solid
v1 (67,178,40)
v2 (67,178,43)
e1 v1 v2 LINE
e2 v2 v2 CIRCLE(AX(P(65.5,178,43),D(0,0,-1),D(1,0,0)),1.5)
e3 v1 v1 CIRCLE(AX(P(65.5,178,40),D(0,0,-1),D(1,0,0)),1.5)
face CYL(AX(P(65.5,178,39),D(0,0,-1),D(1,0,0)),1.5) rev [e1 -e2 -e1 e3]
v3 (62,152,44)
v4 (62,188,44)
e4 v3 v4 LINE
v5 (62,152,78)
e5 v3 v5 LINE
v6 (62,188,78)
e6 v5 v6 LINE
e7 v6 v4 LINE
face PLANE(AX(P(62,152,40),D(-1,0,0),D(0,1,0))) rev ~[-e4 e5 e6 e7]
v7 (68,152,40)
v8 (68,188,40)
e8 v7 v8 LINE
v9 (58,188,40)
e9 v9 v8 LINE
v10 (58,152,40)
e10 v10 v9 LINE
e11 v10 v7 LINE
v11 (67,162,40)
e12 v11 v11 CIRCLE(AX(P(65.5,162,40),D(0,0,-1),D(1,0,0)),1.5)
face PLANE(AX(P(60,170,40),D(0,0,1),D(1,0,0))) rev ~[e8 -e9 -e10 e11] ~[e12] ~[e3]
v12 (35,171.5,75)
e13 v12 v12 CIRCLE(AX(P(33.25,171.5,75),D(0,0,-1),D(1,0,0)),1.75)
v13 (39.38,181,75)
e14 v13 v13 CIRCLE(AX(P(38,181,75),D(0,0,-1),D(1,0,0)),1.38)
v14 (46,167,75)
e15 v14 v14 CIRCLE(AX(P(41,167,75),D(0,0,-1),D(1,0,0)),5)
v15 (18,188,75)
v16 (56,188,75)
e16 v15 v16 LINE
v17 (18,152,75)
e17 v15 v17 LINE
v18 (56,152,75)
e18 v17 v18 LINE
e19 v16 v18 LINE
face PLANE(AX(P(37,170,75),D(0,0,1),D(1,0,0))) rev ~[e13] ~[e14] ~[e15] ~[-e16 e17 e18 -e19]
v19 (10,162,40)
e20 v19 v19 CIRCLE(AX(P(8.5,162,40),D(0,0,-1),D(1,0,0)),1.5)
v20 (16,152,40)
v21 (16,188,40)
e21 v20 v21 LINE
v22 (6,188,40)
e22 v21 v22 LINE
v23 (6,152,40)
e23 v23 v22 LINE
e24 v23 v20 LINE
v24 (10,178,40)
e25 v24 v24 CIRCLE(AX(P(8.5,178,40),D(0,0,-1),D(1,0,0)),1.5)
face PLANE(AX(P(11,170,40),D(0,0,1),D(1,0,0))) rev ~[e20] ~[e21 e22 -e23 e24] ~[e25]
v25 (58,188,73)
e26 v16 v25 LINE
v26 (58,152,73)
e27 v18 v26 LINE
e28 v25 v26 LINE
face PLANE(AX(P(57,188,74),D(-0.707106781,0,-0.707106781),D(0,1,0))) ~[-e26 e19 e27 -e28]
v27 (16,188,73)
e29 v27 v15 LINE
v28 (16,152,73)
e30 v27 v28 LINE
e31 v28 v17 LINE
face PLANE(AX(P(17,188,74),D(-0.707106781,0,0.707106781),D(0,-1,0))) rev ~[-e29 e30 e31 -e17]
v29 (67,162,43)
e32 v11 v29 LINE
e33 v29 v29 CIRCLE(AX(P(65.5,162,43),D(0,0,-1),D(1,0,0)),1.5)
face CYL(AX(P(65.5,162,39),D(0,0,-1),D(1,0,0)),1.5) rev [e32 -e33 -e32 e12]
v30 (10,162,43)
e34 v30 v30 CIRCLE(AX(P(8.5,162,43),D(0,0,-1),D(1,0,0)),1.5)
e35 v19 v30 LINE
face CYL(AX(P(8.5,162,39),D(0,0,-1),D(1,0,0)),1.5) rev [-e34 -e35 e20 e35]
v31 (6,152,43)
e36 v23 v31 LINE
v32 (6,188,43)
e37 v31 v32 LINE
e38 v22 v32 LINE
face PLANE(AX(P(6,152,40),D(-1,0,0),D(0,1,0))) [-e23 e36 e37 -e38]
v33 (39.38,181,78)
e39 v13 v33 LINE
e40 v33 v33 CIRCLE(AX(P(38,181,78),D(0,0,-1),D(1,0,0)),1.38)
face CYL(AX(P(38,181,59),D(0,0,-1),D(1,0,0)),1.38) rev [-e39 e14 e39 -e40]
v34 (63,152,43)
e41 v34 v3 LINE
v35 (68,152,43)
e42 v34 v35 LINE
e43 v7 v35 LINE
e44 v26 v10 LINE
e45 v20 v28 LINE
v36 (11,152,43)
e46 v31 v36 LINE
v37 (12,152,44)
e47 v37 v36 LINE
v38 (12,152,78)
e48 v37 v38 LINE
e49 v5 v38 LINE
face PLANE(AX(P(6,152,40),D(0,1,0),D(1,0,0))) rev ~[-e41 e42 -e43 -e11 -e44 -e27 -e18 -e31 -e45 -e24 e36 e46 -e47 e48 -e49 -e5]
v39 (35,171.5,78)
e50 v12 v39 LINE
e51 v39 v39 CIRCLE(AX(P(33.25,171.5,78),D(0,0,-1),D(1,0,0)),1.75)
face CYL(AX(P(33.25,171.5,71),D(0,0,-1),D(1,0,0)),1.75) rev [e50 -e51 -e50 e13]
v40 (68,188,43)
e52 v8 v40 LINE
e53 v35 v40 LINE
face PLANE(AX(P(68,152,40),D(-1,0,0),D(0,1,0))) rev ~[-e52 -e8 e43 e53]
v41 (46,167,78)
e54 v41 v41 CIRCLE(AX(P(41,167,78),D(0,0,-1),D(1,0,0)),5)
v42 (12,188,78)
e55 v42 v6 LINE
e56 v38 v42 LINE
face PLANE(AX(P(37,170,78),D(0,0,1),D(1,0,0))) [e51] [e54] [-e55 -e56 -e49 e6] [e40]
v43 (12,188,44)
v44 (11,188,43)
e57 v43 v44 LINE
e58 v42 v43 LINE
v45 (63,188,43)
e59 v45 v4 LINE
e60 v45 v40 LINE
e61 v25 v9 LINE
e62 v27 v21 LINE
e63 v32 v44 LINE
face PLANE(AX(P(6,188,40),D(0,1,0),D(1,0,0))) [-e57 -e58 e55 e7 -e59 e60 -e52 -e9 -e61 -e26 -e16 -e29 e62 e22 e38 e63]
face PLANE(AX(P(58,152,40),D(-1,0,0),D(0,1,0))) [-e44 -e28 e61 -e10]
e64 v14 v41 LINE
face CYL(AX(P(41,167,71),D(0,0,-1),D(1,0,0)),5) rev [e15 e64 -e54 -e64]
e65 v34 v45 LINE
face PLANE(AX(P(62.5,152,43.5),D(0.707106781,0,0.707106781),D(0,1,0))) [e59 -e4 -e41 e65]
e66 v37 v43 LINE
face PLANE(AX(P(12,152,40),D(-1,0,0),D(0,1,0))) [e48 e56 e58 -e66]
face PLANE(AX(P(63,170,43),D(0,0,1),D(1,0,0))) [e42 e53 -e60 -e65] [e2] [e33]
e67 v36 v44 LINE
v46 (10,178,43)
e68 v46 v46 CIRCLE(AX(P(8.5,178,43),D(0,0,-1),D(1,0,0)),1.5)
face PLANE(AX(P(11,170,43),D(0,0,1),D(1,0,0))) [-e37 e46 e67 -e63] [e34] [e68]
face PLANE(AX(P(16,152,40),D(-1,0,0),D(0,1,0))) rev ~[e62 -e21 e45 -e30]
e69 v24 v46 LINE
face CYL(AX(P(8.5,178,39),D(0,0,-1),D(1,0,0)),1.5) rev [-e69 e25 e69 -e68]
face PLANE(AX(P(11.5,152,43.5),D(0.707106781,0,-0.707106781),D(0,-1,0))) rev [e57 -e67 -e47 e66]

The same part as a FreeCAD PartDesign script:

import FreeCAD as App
import Part
import Sketcher


def edges_at(feature, points):
    """Names of the edges that pass closest to the given points."""
    edges = feature.Shape.Edges
    near = lambda p: min(range(len(edges)), key=lambda i: edges[i].distToShape(Part.Vertex(*p))[0])
    return sorted({f"Edge{near(p) + 1}" for p in points})

doc = App.newDocument("Part")
body = doc.addObject("PartDesign::Body", "Body")

# Sketch on XY plane
sketch1 = body.newObject("Sketcher::SketchObject", "Sketch")
sketch1.AttachmentSupport = (doc.getObject("XY_Plane"), [""])
sketch1.MapMode = "FlatFace"
sketch1.AttachmentOffset = App.Placement(App.Vector(0, 0, 59), App.Rotation())
sketch1.addGeometry(Part.Circle(App.Vector(38, 57, 0), App.Vector(0, 0, 1), 1.4), False)
sketch1.addConstraint(Sketcher.Constraint("Diameter", 0, 2.76))
sketch1.addConstraint(Sketcher.Constraint("DistanceX", -1, 1, 0, 3, 38.0))
sketch1.addConstraint(Sketcher.Constraint("DistanceY", -1, 1, 0, 3, 57.0))
pad1 = body.newObject("PartDesign::Pad", "Pad")
pad1.Profile = sketch1
pad1.Length = 40
body2 = doc.addObject("PartDesign::Body", "Body001")

# Sketch on XY plane
sketch2 = body2.newObject("Sketcher::SketchObject", "Sketch001")
sketch2.AttachmentSupport = (doc.getObject("XY_Plane001"), [""])
sketch2.MapMode = "FlatFace"
sketch2.AttachmentOffset = App.Placement(App.Vector(0, 0, 71), App.Rotation())
sketch2.addGeometry(Part.Circle(App.Vector(33.2, 47.5, 0), App.Vector(0, 0, 1), 1.8), False)
sketch2.addConstraint(Sketcher.Constraint("Diameter", 0, 3.5))
sketch2.addConstraint(Sketcher.Constraint("DistanceY", -1, 1, 0, 3, 47.5))
sketch2.addConstraint(Sketcher.Constraint("DistanceX", -1, 1, 0, 3, 33.25))
pad2 = body2.newObject("PartDesign::Pad", "Pad001")
pad2.Profile = sketch2
pad2.Length = 10
body3 = doc.addObject("PartDesign::Body", "Body002")

# Sketch on XY plane
sketch3 = body3.newObject("Sketcher::SketchObject", "Sketch002")
sketch3.AttachmentSupport = (doc.getObject("XY_Plane002"), [""])
sketch3.MapMode = "FlatFace"
sketch3.AttachmentOffset = App.Placement(App.Vector(0, 0, 71), App.Rotation())
sketch3.addGeometry(Part.Circle(App.Vector(41, 43, 0), App.Vector(0, 0, 1), 5), False)
sketch3.addConstraint(Sketcher.Constraint("Diameter", 0, 10.0))
sketch3.addConstraint(Sketcher.Constraint("DistanceX", -1, 1, 0, 3, 41.0))
sketch3.addConstraint(Sketcher.Constraint("DistanceY", -1, 1, 0, 3, 43.0))
pad3 = body3.newObject("PartDesign::Pad", "Pad002")
pad3.Profile = sketch3
pad3.Length = 10
body4 = doc.addObject("PartDesign::Body", "Body003")

# Sketch on XY plane
sketch4 = body4.newObject("Sketcher::SketchObject", "Sketch003")
sketch4.AttachmentSupport = (doc.getObject("XY_Plane003"), [""])
sketch4.MapMode = "FlatFace"
sketch4.AttachmentOffset = App.Placement(App.Vector(0, 0, 10), App.Rotation())
sketch4.addGeometry(Part.Circle(App.Vector(0, 0, 0), App.Vector(0, 0, 1), 8), False)
sketch4.addConstraint(Sketcher.Constraint("Coincident", 0, 3, -1, 1))
sketch4.addConstraint(Sketcher.Constraint("Diameter", 0, 17.0))
pad4 = body4.newObject("PartDesign::Pad", "Pad003")
pad4.Profile = sketch4
pad4.Length = 2
body5 = doc.addObject("PartDesign::Body", "Body004")

# Sketch on XY plane
sketch5 = body5.newObject("Sketcher::SketchObject", "Sketch004")
sketch5.AttachmentSupport = (doc.getObject("XY_Plane004"), [""])
sketch5.MapMode = "FlatFace"
sketch5.AttachmentOffset = App.Placement(App.Vector(0, 0, -5), App.Rotation())
sketch5.addGeometry(Part.LineSegment(App.Vector(11, 0.5, 0), App.Vector(11, -0.5, 0)), False)
sketch5.addGeometry(Part.LineSegment(App.Vector(11, -0.5, 0), App.Vector(11.5, -0.5, 0)), False)
sketch5.addGeometry(Part.LineSegment(App.Vector(11.5, -0.5, 0), App.Vector(11.5, 0.5, 0)), False)
sketch5.addGeometry(Part.LineSegment(App.Vector(11.5, 0.5, 0), App.Vector(11, 0.5, 0)), False)
sketch5.addConstraint(Sketcher.Constraint("Coincident", 0, 2, 1, 1))
sketch5.addConstraint(Sketcher.Constraint("Coincident", 1, 2, 2, 1))
sketch5.addConstraint(Sketcher.Constraint("Coincident", 2, 2, 3, 1))
sketch5.addConstraint(Sketcher.Constraint("Coincident", 3, 2, 0, 1))
sketch5.addConstraint(Sketcher.Constraint("Vertical", 0))
sketch5.addConstraint(Sketcher.Constraint("Horizontal", 1))
sketch5.addConstraint(Sketcher.Constraint("Vertical", 2))
sketch5.addConstraint(Sketcher.Constraint("Horizontal", 3))
sketch5.addConstraint(Sketcher.Constraint("DistanceY", 0, 2, 0, 1, 1.0))
sketch5.addConstraint(Sketcher.Constraint("DistanceX", 1, 1, 1, 2, 0.5))
sketch5.addConstraint(Sketcher.Constraint("DistanceX", -1, 1, 0, 2, 11.0))
sketch5.addConstraint(Sketcher.Constraint("DistanceY", 0, 2, -1, 1, 0.5))
pad5 = body5.newObject("PartDesign::Pad", "Pad004")
pad5.Profile = sketch5
pad5.Length = 5
body6 = doc.addObject("PartDesign::Body", "Body005")
body6.AllowCompound = True
doc.recompute()

body6.BaseFeature = body5
doc.recompute()

body7 = doc.addObject("PartDesign::Body", "Body006")
body7.BaseFeature = body5
body7.Placement = App.Placement(App.Vector(0, 0, 0), App.Rotation(App.Vector(0, 0, 1), 30))
boolean = body6.newObject("PartDesign::Boolean", "Boolean")
boolean.Type = "Fuse"
boolean.addObjects([body7])
doc.recompute()

body8 = doc.addObject("PartDesign::Body", "Body007")
body8.BaseFeature = body5
body8.Placement = App.Placement(App.Vector(0, 0, 0), App.Rotation(App.Vector(0, 0, 1), 60))
boolean2 = body6.newObject("PartDesign::Boolean", "Boolean001")
boolean2.Type = "Fuse"
boolean2.addObjects([body8])
doc.recompute()

body9 = doc.addObject("PartDesign::Body", "Body008")
body9.BaseFeature = body5
body9.Placement = App.Placement(App.Vector(0, 0, 0), App.Rotation(App.Vector(0, 0, 1), 90))
boolean3 = body6.newObject("PartDesign::Boolean", "Boolean002")
boolean3.Type = "Fuse"
boolean3.addObjects([body9])
doc.recompute()

body10 = doc.addObject("PartDesign::Body", "Body009")
body10.BaseFeature = body5
body10.Placement = App.Placement(App.Vector(0, 0, 0), App.Rotation(App.Vector(0, 0, 1), 120))
boolean4 = body6.newObject("PartDesign::Boolean", "Boolean003")
boolean4.Type = "Fuse"
boolean4.addObjects([body10])
doc.recompute()

body11 = doc.addObject("PartDesign::Body", "Body010")
body11.BaseFeature = body5
body11.Placement = App.Placement(App.Vector(0, 0, 0), App.Rotation(App.Vector(0, 0, 1), 150))
boolean5 = body6.newObject("PartDesign::Boolean", "Boolean004")
boolean5.Type = "Fuse"
boolean5.addObjects([body11])
doc.recompute()

body12 = doc.addObject("PartDesign::Body", "Body011")
body12.BaseFeature = body5
body12.Placement = App.Placement(App.Vector(0, 0, 0), App.Rotation(App.Vector(0, 0, 1), 180))
boolean6 = body6.newObject("PartDesign::Boolean", "Boolean005")
boolean6.Type = "Fuse"
boolean6.addObjects([body12])
doc.recompute()

body13 = doc.addObject("PartDesign::Body", "Body012")
body13.BaseFeature = body5
body13.Placement = App.Placement(App.Vector(0, 0, 0), App.Rotation(App.Vector(0, 0, 1), 210))
boolean7 = body6.newObject("PartDesign::Boolean", "Boolean006")
boolean7.Type = "Fuse"
boolean7.addObjects([body13])
doc.recompute()

body14 = doc.addObject("PartDesign::Body", "Body013")
body14.BaseFeature = body5
body14.Placement = App.Placement(App.Vector(0, 0, 0), App.Rotation(App.Vector(0, 0, 1), 240))
boolean8 = body6.newObject("PartDesign::Boolean", "Boolean007")
boolean8.Type = "Fuse"
boolean8.addObjects([body14])
doc.recompute()

body15 = doc.addObject("PartDesign::Body", "Body014")
body15.BaseFeature = body5
body15.Placement = App.Placement(App.Vector(0, 0, 0), App.Rotation(App.Vector(0, 0, 1), 270))
boolean9 = body6.newObject("PartDesign::Boolean", "Boolean008")
boolean9.Type = "Fuse"
boolean9.addObjects([body15])
doc.recompute()

body16 = doc.addObject("PartDesign::Body", "Body015")
body16.BaseFeature = body5
body16.Placement = App.Placement(App.Vector(0, 0, 0), App.Rotation(App.Vector(0, 0, 1), 300))
boolean10 = body6.newObject("PartDesign::Boolean", "Boolean009")
boolean10.Type = "Fuse"
boolean10.addObjects([body16])
doc.recompute()

body5.Placement = App.Placement(App.Vector(0, 0, 0), App.Rotation(App.Vector(0, 0, 1), 330))
boolean11 = body6.newObject("PartDesign::Boolean", "Boolean010")
boolean11.Type = "Fuse"
boolean11.addObjects([body5])
body17 = doc.addObject("PartDesign::Body", "Body016")

# Sketch on XY plane
sketch6 = body17.newObject("Sketcher::SketchObject", "Sketch005")
sketch6.AttachmentSupport = (doc.getObject("XY_Plane016"), [""])
sketch6.MapMode = "FlatFace"
sketch6.AttachmentOffset = App.Placement(App.Vector(0, 0, -5), App.Rotation())
sketch6.addGeometry(Part.LineSegment(App.Vector(3, 0.5, 0), App.Vector(3, -0.5, 0)), False)
sketch6.addGeometry(Part.LineSegment(App.Vector(3, -0.5, 0), App.Vector(3.5, -0.5, 0)), False)
sketch6.addGeometry(Part.LineSegment(App.Vector(3.5, -0.5, 0), App.Vector(3.5, 0.5, 0)), False)
sketch6.addGeometry(Part.LineSegment(App.Vector(3.5, 0.5, 0), App.Vector(3, 0.5, 0)), False)
sketch6.addConstraint(Sketcher.Constraint("Coincident", 0, 2, 1, 1))
sketch6.addConstraint(Sketcher.Constraint("Coincident", 1, 2, 2, 1))
sketch6.addConstraint(Sketcher.Constraint("Coincident", 2, 2, 3, 1))
sketch6.addConstraint(Sketcher.Constraint("Coincident", 3, 2, 0, 1))
sketch6.addConstraint(Sketcher.Constraint("Vertical", 0))
sketch6.addConstraint(Sketcher.Constraint("Horizontal", 1))
sketch6.addConstraint(Sketcher.Constraint("Vertical", 2))
sketch6.addConstraint(Sketcher.Constraint("Horizontal", 3))
sketch6.addConstraint(Sketcher.Constraint("DistanceY", 0, 2, 0, 1, 1.0))
sketch6.addConstraint(Sketcher.Constraint("DistanceX", 1, 1, 1, 2, 0.5))
sketch6.addConstraint(Sketcher.Constraint("DistanceX", -1, 1, 0, 2, 3.0))
sketch6.addConstraint(Sketcher.Constraint("DistanceY", 0, 2, -1, 1, 0.5))
pad6 = body17.newObject("PartDesign::Pad", "Pad005")
pad6.Profile = sketch6
pad6.Length = 5
body18 = doc.addObject("PartDesign::Body", "Body017")

# Sketch on XY plane
sketch7 = body18.newObject("Sketcher::SketchObject", "Sketch006")
sketch7.AttachmentSupport = (doc.getObject("XY_Plane017"), [""])
sketch7.MapMode = "FlatFace"
sketch7.AttachmentOffset = App.Placement(App.Vector(0, 0, 12), App.Rotation())
sketch7.addGeometry(Part.Circle(App.Vector(0, 0, 0), App.Vector(0, 0, 1), 4.5), False)
sketch7.addConstraint(Sketcher.Constraint("Coincident", 0, 3, -1, 1))
sketch7.addConstraint(Sketcher.Constraint("Diameter", 0, 9.0))
pad7 = body18.newObject("PartDesign::Pad", "Pad006")
pad7.Profile = sketch7
pad7.Length = 8
body19 = doc.addObject("PartDesign::Body", "Body018")

# Sketch on XY plane
sketch8 = body19.newObject("Sketcher::SketchObject", "Sketch007")
sketch8.AttachmentSupport = (doc.getObject("XY_Plane018"), [""])
sketch8.MapMode = "FlatFace"
sketch8.AttachmentOffset = App.Placement(App.Vector(0, 0, 10), App.Rotation())
sketch8.addGeometry(Part.Circle(App.Vector(9, 0, 0), App.Vector(0, 0, 1), 1.5), False)
sketch8.addConstraint(Sketcher.Constraint("PointOnObject", 0, 3, -1))
sketch8.addConstraint(Sketcher.Constraint("Diameter", 0, 3.0))
sketch8.addConstraint(Sketcher.Constraint("DistanceX", -1, 1, 0, 3, 9.0))
pad8 = body19.newObject("PartDesign::Pad", "Pad007")
pad8.Profile = sketch8
pad8.Length = 4
body20 = doc.addObject("PartDesign::Body", "Body019")

# Sketch on XY plane
sketch9 = body20.newObject("Sketcher::SketchObject", "Sketch008")
sketch9.AttachmentSupport = (doc.getObject("XY_Plane019"), [""])
sketch9.MapMode = "FlatFace"
sketch9.AttachmentOffset = App.Placement(App.Vector(0, 0, 20), App.Rotation())
sketch9.addGeometry(Part.LineSegment(App.Vector(2, 5, 0), App.Vector(2, -5, 0)), False)
sketch9.addGeometry(Part.LineSegment(App.Vector(2, -5, 0), App.Vector(3, -5, 0)), False)
sketch9.addGeometry(Part.LineSegment(App.Vector(3, -5, 0), App.Vector(3, 5, 0)), False)
sketch9.addGeometry(Part.LineSegment(App.Vector(3, 5, 0), App.Vector(2, 5, 0)), False)
sketch9.addConstraint(Sketcher.Constraint("Coincident", 0, 2, 1, 1))
sketch9.addConstraint(Sketcher.Constraint("Coincident", 1, 2, 2, 1))
sketch9.addConstraint(Sketcher.Constraint("Coincident", 2, 2, 3, 1))
sketch9.addConstraint(Sketcher.Constraint("Coincident", 3, 2, 0, 1))
sketch9.addConstraint(Sketcher.Constraint("Vertical", 0))
sketch9.addConstraint(Sketcher.Constraint("Horizontal", 1))
sketch9.addConstraint(Sketcher.Constraint("Vertical", 2))
sketch9.addConstraint(Sketcher.Constraint("Horizontal", 3))
sketch9.addConstraint(Sketcher.Constraint("DistanceX", 1, 1, 1, 2, 1.0))
sketch9.addConstraint(Sketcher.Constraint("DistanceY", 0, 2, 0, 1, 10.0))
sketch9.addConstraint(Sketcher.Constraint("DistanceX", -1, 1, 0, 2, 2.0))
sketch9.addConstraint(Sketcher.Constraint("DistanceY", 0, 2, -1, 1, 5.0))
pad9 = body20.newObject("PartDesign::Pad", "Pad008")
pad9.Profile = sketch9
pad9.Length = 30
body21 = doc.addObject("PartDesign::Body", "Body020")

# Sketch on XY plane
sketch10 = body21.newObject("Sketcher::SketchObject", "Sketch009")
sketch10.AttachmentSupport = (doc.getObject("XY_Plane020"), [""])
sketch10.MapMode = "FlatFace"
sketch10.AttachmentOffset = App.Placement(App.Vector(0, 0, 20), App.Rotation())
sketch10.addGeometry(Part.Circle(App.Vector(0, 0, 0), App.Vector(0, 0, 1), 3), False)
sketch10.addConstraint(Sketcher.Constraint("Coincident", 0, 3, -1, 1))
sketch10.addConstraint(Sketcher.Constraint("Diameter", 0, 6.0))
pad10 = body21.newObject("PartDesign::Pad", "Pad009")
pad10.Profile = sketch10
pad10.Length = 30
doc.recompute()

boolean12 = body21.newObject("PartDesign::Boolean", "Boolean011")
boolean12.Type = "Cut"
boolean12.addObjects([body20])
body22 = doc.addObject("PartDesign::Body", "Body021")

# Sketch on XY plane
sketch11 = body22.newObject("Sketcher::SketchObject", "Sketch010")
sketch11.AttachmentSupport = (doc.getObject("XY_Plane021"), [""])
sketch11.MapMode = "FlatFace"
sketch11.addGeometry(Part.Circle(App.Vector(0, 0, 0), App.Vector(0, 0, 1), 13), False)
sketch11.addConstraint(Sketcher.Constraint("Coincident", 0, 3, -1, 1))
sketch11.addConstraint(Sketcher.Constraint("Diameter", 0, 26.0))
pad11 = body22.newObject("PartDesign::Pad", "Pad010")
pad11.Profile = sketch11
pad11.Length = 10
doc.recompute()

boolean13 = body22.newObject("PartDesign::Boolean", "Boolean012")
boolean13.Type = "Fuse"
boolean13.addObjects([body4])
doc.recompute()

boolean14 = body22.newObject("PartDesign::Boolean", "Boolean013")
boolean14.Type = "Fuse"
boolean14.addObjects([body6])
doc.recompute()

boolean15 = body22.newObject("PartDesign::Boolean", "Boolean014")
boolean15.Type = "Fuse"
boolean15.addObjects([body17])
doc.recompute()

boolean16 = body22.newObject("PartDesign::Boolean", "Boolean015")
boolean16.Type = "Fuse"
boolean16.addObjects([body18])
doc.recompute()

boolean17 = body22.newObject("PartDesign::Boolean", "Boolean016")
boolean17.Type = "Fuse"
boolean17.addObjects([body19])
doc.recompute()

boolean18 = body22.newObject("PartDesign::Boolean", "Boolean017")
boolean18.Type = "Fuse"
boolean18.addObjects([body21])
body23 = doc.addObject("PartDesign::Body", "Body022")
doc.recompute()

body22.Placement = App.Placement(App.Vector(0, 0, 0), App.Rotation(App.Vector(1, 0, 0), 180))
boolean19 = body23.newObject("PartDesign::Boolean", "Boolean018")
boolean19.Type = "Fuse"
boolean19.addObjects([body22])
body24 = doc.addObject("PartDesign::Body", "Body023")
doc.recompute()

body23.Placement = App.Placement(App.Vector(40.992958, 43.010908, 90), App.Rotation(App.Vector(0, 0, 1), 150))
boolean20 = body24.newObject("PartDesign::Boolean", "Boolean019")
boolean20.Type = "Fuse"
boolean20.addObjects([body23])
body25 = doc.addObject("PartDesign::Body", "Body024")

# Sketch on XY plane
sketch12 = body25.newObject("Sketcher::SketchObject", "Sketch011")
sketch12.AttachmentSupport = (doc.getObject("XY_Plane024"), [""])
sketch12.MapMode = "FlatFace"
sketch12.AttachmentOffset = App.Placement(App.Vector(0, 0, 39), App.Rotation())
sketch12.addGeometry(Part.Circle(App.Vector(65.5, 54, 0), App.Vector(0, 0, 1), 1.5), False)
sketch12.addConstraint(Sketcher.Constraint("Diameter", 0, 3.0))
sketch12.addConstraint(Sketcher.Constraint("DistanceY", -1, 1, 0, 3, 54.0))
sketch12.addConstraint(Sketcher.Constraint("DistanceX", -1, 1, 0, 3, 65.5))
pad12 = body25.newObject("PartDesign::Pad", "Pad011")
pad12.Profile = sketch12
pad12.Length = 5
body26 = doc.addObject("PartDesign::Body", "Body025")

# Sketch on XY plane
sketch13 = body26.newObject("Sketcher::SketchObject", "Sketch012")
sketch13.AttachmentSupport = (doc.getObject("XY_Plane025"), [""])
sketch13.MapMode = "FlatFace"
sketch13.AttachmentOffset = App.Placement(App.Vector(0, 0, 39), App.Rotation())
sketch13.addGeometry(Part.Circle(App.Vector(65.5, 38, 0), App.Vector(0, 0, 1), 1.5), False)
sketch13.addConstraint(Sketcher.Constraint("Diameter", 0, 3.0))
sketch13.addConstraint(Sketcher.Constraint("DistanceY", -1, 1, 0, 3, 38.0))
sketch13.addConstraint(Sketcher.Constraint("DistanceX", -1, 1, 0, 3, 65.5))
pad13 = body26.newObject("PartDesign::Pad", "Pad012")
pad13.Profile = sketch13
pad13.Length = 5
body27 = doc.addObject("PartDesign::Body", "Body026")

# Sketch on XY plane
sketch14 = body27.newObject("Sketcher::SketchObject", "Sketch013")
sketch14.AttachmentSupport = (doc.getObject("XY_Plane026"), [""])
sketch14.MapMode = "FlatFace"
sketch14.AttachmentOffset = App.Placement(App.Vector(0, 0, 39), App.Rotation())
sketch14.addGeometry(Part.Circle(App.Vector(8.5, 54, 0), App.Vector(0, 0, 1), 1.5), False)
sketch14.addConstraint(Sketcher.Constraint("Diameter", 0, 3.0))
sketch14.addConstraint(Sketcher.Constraint("DistanceY", -1, 1, 0, 3, 54.0))
sketch14.addConstraint(Sketcher.Constraint("DistanceX", -1, 1, 0, 3, 8.5))
pad14 = body27.newObject("PartDesign::Pad", "Pad013")
pad14.Profile = sketch14
pad14.Length = 5
body28 = doc.addObject("PartDesign::Body", "Body027")

# Sketch on XY plane
sketch15 = body28.newObject("Sketcher::SketchObject", "Sketch014")
sketch15.AttachmentSupport = (doc.getObject("XY_Plane027"), [""])
sketch15.MapMode = "FlatFace"
sketch15.AttachmentOffset = App.Placement(App.Vector(0, 0, 39), App.Rotation())
sketch15.addGeometry(Part.Circle(App.Vector(8.5, 38, 0), App.Vector(0, 0, 1), 1.5), False)
sketch15.addConstraint(Sketcher.Constraint("Diameter", 0, 3.0))
sketch15.addConstraint(Sketcher.Constraint("DistanceY", -1, 1, 0, 3, 38.0))
sketch15.addConstraint(Sketcher.Constraint("DistanceX", -1, 1, 0, 3, 8.5))
pad15 = body28.newObject("PartDesign::Pad", "Pad014")
pad15.Profile = sketch15
pad15.Length = 5
body29 = doc.addObject("PartDesign::Body", "Body028")

# Sketch on XY plane
sketch16 = body29.newObject("Sketcher::SketchObject", "Sketch015")
sketch16.AttachmentSupport = (doc.getObject("XY_Plane028"), [""])
sketch16.MapMode = "FlatFace"
sketch16.AttachmentOffset = App.Placement(App.Vector(0, 0, 40), App.Rotation())
sketch16.addGeometry(Part.LineSegment(App.Vector(12, 64, 0), App.Vector(12, 28, 0)), False)
sketch16.addGeometry(Part.LineSegment(App.Vector(12, 28, 0), App.Vector(16, 28, 0)), False)
sketch16.addGeometry(Part.LineSegment(App.Vector(16, 28, 0), App.Vector(16, 64, 0)), False)
sketch16.addGeometry(Part.LineSegment(App.Vector(16, 64, 0), App.Vector(12, 64, 0)), False)
sketch16.addConstraint(Sketcher.Constraint("Coincident", 0, 2, 1, 1))
sketch16.addConstraint(Sketcher.Constraint("Coincident", 1, 2, 2, 1))
sketch16.addConstraint(Sketcher.Constraint("Coincident", 2, 2, 3, 1))
sketch16.addConstraint(Sketcher.Constraint("Coincident", 3, 2, 0, 1))
sketch16.addConstraint(Sketcher.Constraint("Vertical", 0))
sketch16.addConstraint(Sketcher.Constraint("Horizontal", 1))
sketch16.addConstraint(Sketcher.Constraint("Vertical", 2))
sketch16.addConstraint(Sketcher.Constraint("Horizontal", 3))
sketch16.addConstraint(Sketcher.Constraint("DistanceX", 1, 1, 1, 2, 4.0))
sketch16.addConstraint(Sketcher.Constraint("DistanceY", 0, 2, 0, 1, 36.0))
sketch16.addConstraint(Sketcher.Constraint("DistanceX", -1, 1, 0, 2, 12.0))
sketch16.addConstraint(Sketcher.Constraint("DistanceY", -1, 1, 0, 2, 28.0))
pad16 = body29.newObject("PartDesign::Pad", "Pad015")
pad16.Profile = sketch16
pad16.Length = 38
body30 = doc.addObject("PartDesign::Body", "Body029")

# Sketch on XY plane
sketch17 = body30.newObject("Sketcher::SketchObject", "Sketch016")
sketch17.AttachmentSupport = (doc.getObject("XY_Plane029"), [""])
sketch17.MapMode = "FlatFace"
sketch17.AttachmentOffset = App.Placement(App.Vector(0, 0, 40), App.Rotation())
sketch17.addGeometry(Part.LineSegment(App.Vector(58, 64, 0), App.Vector(58, 28, 0)), False)
sketch17.addGeometry(Part.LineSegment(App.Vector(58, 28, 0), App.Vector(62, 28, 0)), False)
sketch17.addGeometry(Part.LineSegment(App.Vector(62, 28, 0), App.Vector(62, 64, 0)), False)
sketch17.addGeometry(Part.LineSegment(App.Vector(62, 64, 0), App.Vector(58, 64, 0)), False)
sketch17.addConstraint(Sketcher.Constraint("Coincident", 0, 2, 1, 1))
sketch17.addConstraint(Sketcher.Constraint("Coincident", 1, 2, 2, 1))
sketch17.addConstraint(Sketcher.Constraint("Coincident", 2, 2, 3, 1))
sketch17.addConstraint(Sketcher.Constraint("Coincident", 3, 2, 0, 1))
sketch17.addConstraint(Sketcher.Constraint("Vertical", 0))
sketch17.addConstraint(Sketcher.Constraint("Horizontal", 1))
sketch17.addConstraint(Sketcher.Constraint("Vertical", 2))
sketch17.addConstraint(Sketcher.Constraint("Horizontal", 3))
sketch17.addConstraint(Sketcher.Constraint("DistanceX", 1, 1, 1, 2, 4.0))
sketch17.addConstraint(Sketcher.Constraint("DistanceY", 0, 2, 0, 1, 36.0))
sketch17.addConstraint(Sketcher.Constraint("DistanceX", -1, 1, 0, 2, 58.0))
sketch17.addConstraint(Sketcher.Constraint("DistanceY", -1, 1, 0, 2, 28.0))
pad17 = body30.newObject("PartDesign::Pad", "Pad016")
pad17.Profile = sketch17
pad17.Length = 38
body31 = doc.addObject("PartDesign::Body", "Body030")

# Sketch on XY plane
sketch18 = body31.newObject("Sketcher::SketchObject", "Sketch017")
sketch18.AttachmentSupport = (doc.getObject("XY_Plane030"), [""])
sketch18.MapMode = "FlatFace"
sketch18.AttachmentOffset = App.Placement(App.Vector(0, 0, 40), App.Rotation())
sketch18.addGeometry(Part.LineSegment(App.Vector(6, 64, 0), App.Vector(6, 28, 0)), False)
sketch18.addGeometry(Part.LineSegment(App.Vector(6, 28, 0), App.Vector(16, 28, 0)), False)
sketch18.addGeometry(Part.LineSegment(App.Vector(16, 28, 0), App.Vector(16, 64, 0)), False)
sketch18.addGeometry(Part.LineSegment(App.Vector(16, 64, 0), App.Vector(6, 64, 0)), False)
sketch18.addConstraint(Sketcher.Constraint("Coincident", 0, 2, 1, 1))
sketch18.addConstraint(Sketcher.Constraint("Coincident", 1, 2, 2, 1))
sketch18.addConstraint(Sketcher.Constraint("Coincident", 2, 2, 3, 1))
sketch18.addConstraint(Sketcher.Constraint("Coincident", 3, 2, 0, 1))
sketch18.addConstraint(Sketcher.Constraint("Vertical", 0))
sketch18.addConstraint(Sketcher.Constraint("Horizontal", 1))
sketch18.addConstraint(Sketcher.Constraint("Vertical", 2))
sketch18.addConstraint(Sketcher.Constraint("Horizontal", 3))
sketch18.addConstraint(Sketcher.Constraint("DistanceX", 1, 1, 1, 2, 10.0))
sketch18.addConstraint(Sketcher.Constraint("DistanceY", 0, 2, 0, 1, 36.0))
sketch18.addConstraint(Sketcher.Constraint("DistanceX", -1, 1, 0, 2, 6.0))
sketch18.addConstraint(Sketcher.Constraint("DistanceY", -1, 1, 0, 2, 28.0))
pad18 = body31.newObject("PartDesign::Pad", "Pad017")
pad18.Profile = sketch18
pad18.Length = 3
body32 = doc.addObject("PartDesign::Body", "Body031")

# Sketch on XY plane
sketch19 = body32.newObject("Sketcher::SketchObject", "Sketch018")
sketch19.AttachmentSupport = (doc.getObject("XY_Plane031"), [""])
sketch19.MapMode = "FlatFace"
sketch19.AttachmentOffset = App.Placement(App.Vector(0, 0, 40), App.Rotation())
sketch19.addGeometry(Part.LineSegment(App.Vector(58, 64, 0), App.Vector(58, 28, 0)), False)
sketch19.addGeometry(Part.LineSegment(App.Vector(58, 28, 0), App.Vector(68, 28, 0)), False)
sketch19.addGeometry(Part.LineSegment(App.Vector(68, 28, 0), App.Vector(68, 64, 0)), False)
sketch19.addGeometry(Part.LineSegment(App.Vector(68, 64, 0), App.Vector(58, 64, 0)), False)
sketch19.addConstraint(Sketcher.Constraint("Coincident", 0, 2, 1, 1))
sketch19.addConstraint(Sketcher.Constraint("Coincident", 1, 2, 2, 1))
sketch19.addConstraint(Sketcher.Constraint("Coincident", 2, 2, 3, 1))
sketch19.addConstraint(Sketcher.Constraint("Coincident", 3, 2, 0, 1))
sketch19.addConstraint(Sketcher.Constraint("Vertical", 0))
sketch19.addConstraint(Sketcher.Constraint("Horizontal", 1))
sketch19.addConstraint(Sketcher.Constraint("Vertical", 2))
sketch19.addConstraint(Sketcher.Constraint("Horizontal", 3))
sketch19.addConstraint(Sketcher.Constraint("DistanceX", 1, 1, 1, 2, 10.0))
sketch19.addConstraint(Sketcher.Constraint("DistanceY", 0, 2, 0, 1, 36.0))
sketch19.addConstraint(Sketcher.Constraint("DistanceX", -1, 1, 0, 2, 58.0))
sketch19.addConstraint(Sketcher.Constraint("DistanceY", -1, 1, 0, 2, 28.0))
pad19 = body32.newObject("PartDesign::Pad", "Pad018")
pad19.Profile = sketch19
pad19.Length = 3
body33 = doc.addObject("PartDesign::Body", "Body032")

# Sketch on XY plane
sketch20 = body33.newObject("Sketcher::SketchObject", "Sketch019")
sketch20.AttachmentSupport = (doc.getObject("XY_Plane032"), [""])
sketch20.MapMode = "FlatFace"
sketch20.AttachmentOffset = App.Placement(App.Vector(0, 0, 75), App.Rotation())
sketch20.addGeometry(Part.LineSegment(App.Vector(12, 64, 0), App.Vector(12, 28, 0)), False)
sketch20.addGeometry(Part.LineSegment(App.Vector(12, 28, 0), App.Vector(62, 28, 0)), False)
sketch20.addGeometry(Part.LineSegment(App.Vector(62, 28, 0), App.Vector(62, 64, 0)), False)
sketch20.addGeometry(Part.LineSegment(App.Vector(62, 64, 0), App.Vector(12, 64, 0)), False)
sketch20.addConstraint(Sketcher.Constraint("Coincident", 0, 2, 1, 1))
sketch20.addConstraint(Sketcher.Constraint("Coincident", 1, 2, 2, 1))
sketch20.addConstraint(Sketcher.Constraint("Coincident", 2, 2, 3, 1))
sketch20.addConstraint(Sketcher.Constraint("Coincident", 3, 2, 0, 1))
sketch20.addConstraint(Sketcher.Constraint("Vertical", 0))
sketch20.addConstraint(Sketcher.Constraint("Horizontal", 1))
sketch20.addConstraint(Sketcher.Constraint("Vertical", 2))
sketch20.addConstraint(Sketcher.Constraint("Horizontal", 3))
sketch20.addConstraint(Sketcher.Constraint("DistanceX", 1, 1, 1, 2, 50.0))
sketch20.addConstraint(Sketcher.Constraint("DistanceY", 0, 2, 0, 1, 36.0))
sketch20.addConstraint(Sketcher.Constraint("DistanceX", -1, 1, 0, 2, 12.0))
sketch20.addConstraint(Sketcher.Constraint("DistanceY", -1, 1, 0, 2, 28.0))
pad20 = body33.newObject("PartDesign::Pad", "Pad019")
pad20.Profile = sketch20
pad20.Length = 3
doc.recompute()

boolean21 = body33.newObject("PartDesign::Boolean", "Boolean020")
boolean21.Type = "Fuse"
boolean21.addObjects([body29])
doc.recompute()

boolean22 = body33.newObject("PartDesign::Boolean", "Boolean021")
boolean22.Type = "Fuse"
boolean22.addObjects([body30])
doc.recompute()

boolean23 = body33.newObject("PartDesign::Boolean", "Boolean022")
boolean23.Type = "Fuse"
boolean23.addObjects([body31])
doc.recompute()

boolean24 = body33.newObject("PartDesign::Boolean", "Boolean023")
boolean24.Type = "Fuse"
boolean24.addObjects([body32])
doc.recompute()

chamfer = body33.newObject("PartDesign::Chamfer", "Chamfer")
chamfer.Base = (boolean24, edges_at(boolean24, [(58, 46, 75), (16, 46, 75)]))
chamfer.Size = 2
doc.recompute()

chamfer2 = body33.newObject("PartDesign::Chamfer", "Chamfer001")
chamfer2.Base = (chamfer, edges_at(chamfer, [(62, 46, 43), (12, 46, 43)]))
chamfer2.Size = 1
doc.recompute()

boolean25 = body33.newObject("PartDesign::Boolean", "Boolean024")
boolean25.Type = "Cut"
boolean25.addObjects([body28])
doc.recompute()

boolean26 = body33.newObject("PartDesign::Boolean", "Boolean025")
boolean26.Type = "Cut"
boolean26.addObjects([body27])
doc.recompute()

boolean27 = body33.newObject("PartDesign::Boolean", "Boolean026")
boolean27.Type = "Cut"
boolean27.addObjects([body26])
doc.recompute()

boolean28 = body33.newObject("PartDesign::Boolean", "Boolean027")
boolean28.Type = "Cut"
boolean28.addObjects([body25])
doc.recompute()

boolean29 = body33.newObject("PartDesign::Boolean", "Boolean028")
boolean29.Type = "Cut"
boolean29.addObjects([body24])
doc.recompute()

boolean30 = body33.newObject("PartDesign::Boolean", "Boolean029")
boolean30.Type = "Cut"
boolean30.addObjects([body3])
doc.recompute()

boolean31 = body33.newObject("PartDesign::Boolean", "Boolean030")
boolean31.Type = "Cut"
boolean31.addObjects([body2])
doc.recompute()

boolean32 = body33.newObject("PartDesign::Boolean", "Boolean031")
boolean32.Type = "Cut"
boolean32.addObjects([body])
body34 = doc.addObject("PartDesign::Body", "Body033")
doc.recompute()

body33.Placement = App.Placement(App.Vector(0, 124, 0), App.Rotation(App.Vector(0, 0, 1), 0))
boolean33 = body34.newObject("PartDesign::Boolean", "Boolean032")
boolean33.Type = "Fuse"
boolean33.addObjects([body33])

doc.recompute()
